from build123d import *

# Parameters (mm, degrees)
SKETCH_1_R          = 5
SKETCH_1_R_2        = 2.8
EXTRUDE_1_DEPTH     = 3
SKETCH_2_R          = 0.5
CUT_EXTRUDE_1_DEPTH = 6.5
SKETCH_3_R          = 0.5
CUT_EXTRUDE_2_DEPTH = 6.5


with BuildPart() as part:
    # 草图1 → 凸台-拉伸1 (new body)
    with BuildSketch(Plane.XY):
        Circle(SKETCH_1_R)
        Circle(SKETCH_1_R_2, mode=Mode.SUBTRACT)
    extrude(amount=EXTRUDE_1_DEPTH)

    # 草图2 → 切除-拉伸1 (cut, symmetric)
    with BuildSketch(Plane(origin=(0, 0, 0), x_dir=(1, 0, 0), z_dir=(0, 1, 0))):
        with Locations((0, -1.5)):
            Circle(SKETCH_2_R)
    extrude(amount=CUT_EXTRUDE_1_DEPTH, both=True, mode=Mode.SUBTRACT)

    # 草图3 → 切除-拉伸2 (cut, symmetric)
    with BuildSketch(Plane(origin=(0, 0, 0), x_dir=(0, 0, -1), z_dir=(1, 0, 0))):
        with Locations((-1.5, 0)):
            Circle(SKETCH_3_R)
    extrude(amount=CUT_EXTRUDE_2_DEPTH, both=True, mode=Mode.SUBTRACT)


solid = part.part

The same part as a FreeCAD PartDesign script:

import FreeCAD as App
import Part
import Sketcher

doc = App.newDocument("Part")
body = doc.addObject("PartDesign::Body", "Body")

sketch1 = doc.addObject("Sketcher::SketchObject", "Sketch")
body.addObject(sketch1)
sketch1.AttachmentSupport = (doc.XY_Plane, [""])
sketch1.MapMode = "FlatFace"
sketch1.addGeometry([
    Part.Circle(App.Vector(0, 0, 0), App.Vector(0, 0, 1), 5),
    Part.Circle(App.Vector(0, 0, 0), App.Vector(0, 0, 1), 2.8),
], False)
sketch1.addConstraint([
    Sketcher.Constraint("Coincident", 0, 3, -1, 1),
    Sketcher.Constraint("Coincident", 1, 3, -1, 1),
    Sketcher.Constraint("Diameter", 0, 10.0),
    Sketcher.Constraint("Diameter", 1, 5.6),
])
pad1 = doc.addObject("PartDesign::Pad", "Pad")
body.addObject(pad1)
pad1.Profile = sketch1
pad1.Length = 3

sketch2 = doc.addObject("Sketcher::SketchObject", "Sketch001")
body.addObject(sketch2)
sketch2.AttachmentSupport = (doc.XZ_Plane, [""])
sketch2.MapMode = "FlatFace"
sketch2.addGeometry(Part.Circle(App.Vector(0, 1.5, 0), App.Vector(0, 0, 1), 0.5), False)
sketch2.addConstraint([
    Sketcher.Constraint("PointOnObject", 0, 3, -2),
    Sketcher.Constraint("Diameter", 0, 1.0),
    Sketcher.Constraint("DistanceY", -1, 1, 0, 3, 1.5),
])
pocket1 = doc.addObject("PartDesign::Pocket", "Pocket")
body.addObject(pocket1)
pocket1.Profile = sketch2
pocket1.Length = 13
pocket1.Midplane = True

sketch3 = doc.addObject("Sketcher::SketchObject", "Sketch002")
body.addObject(sketch3)
sketch3.AttachmentSupport = (doc.YZ_Plane, [""])
sketch3.MapMode = "FlatFace"
sketch3.addGeometry(Part.Circle(App.Vector(0, 1.5, 0), App.Vector(0, 0, 1), 0.5), False)
sketch3.addConstraint([
    Sketcher.Constraint("PointOnObject", 0, 3, -2),
    Sketcher.Constraint("Diameter", 0, 1.0),
    Sketcher.Constraint("DistanceY", -1, 1, 0, 3, 1.5),
])
pocket2 = doc.addObject("PartDesign::Pocket", "Pocket001")
body.addObject(pocket2)
pocket2.Profile = sketch3
pocket2.Length = 13
pocket2.Midplane = True

doc.recompute()
